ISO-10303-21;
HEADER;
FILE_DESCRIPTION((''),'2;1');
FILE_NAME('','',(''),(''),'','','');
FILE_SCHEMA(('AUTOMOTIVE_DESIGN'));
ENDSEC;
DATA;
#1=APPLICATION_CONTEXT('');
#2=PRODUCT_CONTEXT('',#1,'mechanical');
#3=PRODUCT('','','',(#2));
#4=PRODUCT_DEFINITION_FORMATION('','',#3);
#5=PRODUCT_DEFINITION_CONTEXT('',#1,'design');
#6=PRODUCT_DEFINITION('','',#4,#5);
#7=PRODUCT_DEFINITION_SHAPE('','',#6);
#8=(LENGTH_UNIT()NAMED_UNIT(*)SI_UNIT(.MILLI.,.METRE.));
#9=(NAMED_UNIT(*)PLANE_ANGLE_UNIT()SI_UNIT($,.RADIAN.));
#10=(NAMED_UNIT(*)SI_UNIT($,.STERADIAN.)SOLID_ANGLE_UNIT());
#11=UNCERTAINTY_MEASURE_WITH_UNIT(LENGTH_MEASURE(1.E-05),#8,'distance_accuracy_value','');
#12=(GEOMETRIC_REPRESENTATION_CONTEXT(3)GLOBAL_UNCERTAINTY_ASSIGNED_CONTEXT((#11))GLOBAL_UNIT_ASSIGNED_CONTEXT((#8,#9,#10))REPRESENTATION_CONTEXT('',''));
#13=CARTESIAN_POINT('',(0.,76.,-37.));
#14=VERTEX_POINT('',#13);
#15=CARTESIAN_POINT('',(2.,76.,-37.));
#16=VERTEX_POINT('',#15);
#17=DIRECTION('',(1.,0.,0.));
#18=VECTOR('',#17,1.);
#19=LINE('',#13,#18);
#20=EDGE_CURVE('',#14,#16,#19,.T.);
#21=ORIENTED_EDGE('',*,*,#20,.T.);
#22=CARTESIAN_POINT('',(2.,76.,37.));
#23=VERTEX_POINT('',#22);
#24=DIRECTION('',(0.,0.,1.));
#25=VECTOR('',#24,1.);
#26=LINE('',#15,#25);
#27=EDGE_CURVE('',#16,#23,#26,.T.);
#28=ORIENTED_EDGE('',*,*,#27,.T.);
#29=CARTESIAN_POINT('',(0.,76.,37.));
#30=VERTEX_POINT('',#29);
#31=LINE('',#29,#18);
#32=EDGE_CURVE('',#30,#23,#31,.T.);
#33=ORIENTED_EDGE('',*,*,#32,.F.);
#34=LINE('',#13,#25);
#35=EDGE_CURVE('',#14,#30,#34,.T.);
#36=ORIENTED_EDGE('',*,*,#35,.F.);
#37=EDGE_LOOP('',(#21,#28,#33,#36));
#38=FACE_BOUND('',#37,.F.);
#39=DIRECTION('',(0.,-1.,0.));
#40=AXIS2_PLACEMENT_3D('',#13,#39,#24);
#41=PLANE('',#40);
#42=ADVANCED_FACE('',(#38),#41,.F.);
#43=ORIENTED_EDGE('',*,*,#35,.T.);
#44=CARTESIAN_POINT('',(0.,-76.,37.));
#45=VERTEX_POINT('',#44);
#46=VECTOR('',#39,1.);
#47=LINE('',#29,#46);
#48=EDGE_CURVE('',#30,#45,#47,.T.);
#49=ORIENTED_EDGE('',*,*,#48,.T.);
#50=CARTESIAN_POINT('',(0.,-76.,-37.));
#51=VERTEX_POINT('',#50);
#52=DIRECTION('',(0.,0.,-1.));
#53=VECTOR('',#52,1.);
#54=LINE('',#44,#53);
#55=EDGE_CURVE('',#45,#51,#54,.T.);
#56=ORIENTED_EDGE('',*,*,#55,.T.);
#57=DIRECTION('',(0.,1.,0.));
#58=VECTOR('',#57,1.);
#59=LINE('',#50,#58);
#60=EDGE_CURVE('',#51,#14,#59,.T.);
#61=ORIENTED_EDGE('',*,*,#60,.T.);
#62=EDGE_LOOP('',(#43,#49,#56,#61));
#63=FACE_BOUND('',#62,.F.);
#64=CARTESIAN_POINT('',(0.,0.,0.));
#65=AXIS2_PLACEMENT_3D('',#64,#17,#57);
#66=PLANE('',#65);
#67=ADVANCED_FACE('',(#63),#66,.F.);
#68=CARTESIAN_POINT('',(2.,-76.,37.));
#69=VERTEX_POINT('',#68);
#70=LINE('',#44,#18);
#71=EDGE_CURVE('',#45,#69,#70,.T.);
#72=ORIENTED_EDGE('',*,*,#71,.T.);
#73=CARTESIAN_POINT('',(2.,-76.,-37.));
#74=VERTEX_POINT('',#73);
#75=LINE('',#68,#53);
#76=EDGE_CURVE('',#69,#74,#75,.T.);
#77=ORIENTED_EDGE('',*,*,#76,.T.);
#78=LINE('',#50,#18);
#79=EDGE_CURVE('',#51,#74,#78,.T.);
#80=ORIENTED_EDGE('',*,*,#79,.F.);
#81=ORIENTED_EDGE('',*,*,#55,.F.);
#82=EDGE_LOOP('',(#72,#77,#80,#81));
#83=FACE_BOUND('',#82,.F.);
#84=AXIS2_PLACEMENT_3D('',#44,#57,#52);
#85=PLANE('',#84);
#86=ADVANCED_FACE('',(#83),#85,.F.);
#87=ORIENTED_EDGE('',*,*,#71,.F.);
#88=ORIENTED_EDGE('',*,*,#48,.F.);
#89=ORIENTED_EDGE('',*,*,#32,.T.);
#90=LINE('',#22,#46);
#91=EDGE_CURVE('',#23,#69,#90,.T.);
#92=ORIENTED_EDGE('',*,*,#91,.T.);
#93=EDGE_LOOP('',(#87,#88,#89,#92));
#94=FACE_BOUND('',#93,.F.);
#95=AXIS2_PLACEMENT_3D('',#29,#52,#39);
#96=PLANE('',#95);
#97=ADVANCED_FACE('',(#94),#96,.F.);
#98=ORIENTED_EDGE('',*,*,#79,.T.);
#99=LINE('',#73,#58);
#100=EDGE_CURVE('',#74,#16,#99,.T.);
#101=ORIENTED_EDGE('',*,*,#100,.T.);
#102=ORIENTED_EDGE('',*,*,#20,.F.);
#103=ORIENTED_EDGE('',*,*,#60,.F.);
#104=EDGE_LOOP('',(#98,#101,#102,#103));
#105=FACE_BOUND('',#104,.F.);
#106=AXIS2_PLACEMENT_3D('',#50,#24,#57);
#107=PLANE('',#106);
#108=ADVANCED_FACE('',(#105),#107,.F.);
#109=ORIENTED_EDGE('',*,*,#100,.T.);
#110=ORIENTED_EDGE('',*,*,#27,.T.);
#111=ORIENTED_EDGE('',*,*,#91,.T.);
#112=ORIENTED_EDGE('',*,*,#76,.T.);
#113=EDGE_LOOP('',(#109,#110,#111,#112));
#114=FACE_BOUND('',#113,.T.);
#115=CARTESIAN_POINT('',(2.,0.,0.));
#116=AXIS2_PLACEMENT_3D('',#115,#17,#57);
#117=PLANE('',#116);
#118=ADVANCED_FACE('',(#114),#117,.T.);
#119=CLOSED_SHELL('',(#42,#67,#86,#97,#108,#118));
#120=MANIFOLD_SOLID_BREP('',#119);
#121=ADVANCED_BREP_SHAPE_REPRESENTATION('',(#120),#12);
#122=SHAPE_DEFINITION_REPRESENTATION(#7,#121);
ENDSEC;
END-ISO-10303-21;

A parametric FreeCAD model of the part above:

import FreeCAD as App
import Part
import Sketcher

V = App.Vector


def add_polygon(sketch, points):
    """Adds a closed chain of lines whose ends are joined by coincident constraints."""
    first, n = sketch.GeometryCount, len(points)
    for a, b in zip(points, points[1:] + points[:1]):
        sketch.addGeometry(Part.LineSegment(App.Vector(*a, 0), App.Vector(*b, 0)), False)
    for i in range(n):
        sketch.addConstraint(Sketcher.Constraint("Coincident", first + i, 2, first + (i + 1) % n, 1))

doc = App.newDocument("Part")
params = doc.addObject("Spreadsheet::Sheet", "Params")
for row, (alias, value) in enumerate([
    ("sketch1_width", "152 mm"),
    ("sketch1_height", "74 mm"),
    ("pad1_length", "2 mm"),
], start=1):
    params.set(f"A{row}", alias)
    params.set(f"B{row}", "=" + value)
    params.setAlias(f"B{row}", alias)

body = doc.addObject("PartDesign::Body", "Body")

# Sketch on YZ plane
sketch1 = doc.addObject("Sketcher::SketchObject", "Sketch")
body.addObject(sketch1)
sketch1.AttachmentSupport = (doc.YZ_Plane, [""])
sketch1.MapMode = "FlatFace"
add_polygon(sketch1, [(76, -37), (76, 37), (-76, 37), (-76, -37)])  # lines 0-3
sketch1.addConstraint([
    Sketcher.Constraint("Vertical", 0),
    Sketcher.Constraint("Horizontal", 1),
    Sketcher.Constraint("Vertical", 2),
    Sketcher.Constraint("Horizontal", 3),
    Sketcher.Constraint("Symmetric", 0, 2, 2, 2, -1, 1),
    Sketcher.Constraint("DistanceX", 1, 2, 1, 1, 152.0),
    Sketcher.Constraint("DistanceY", 0, 1, 0, 2, 74.0),
])
sketch1.setExpression("Constraints[9]", "Params.sketch1_width")
sketch1.setExpression("Constraints[10]", "Params.sketch1_height")
pad1 = doc.addObject("PartDesign::Pad", "Pad")
body.addObject(pad1)
pad1.Profile = sketch1
pad1.setExpression("Length", "Params.pad1_length")

doc.recompute()
